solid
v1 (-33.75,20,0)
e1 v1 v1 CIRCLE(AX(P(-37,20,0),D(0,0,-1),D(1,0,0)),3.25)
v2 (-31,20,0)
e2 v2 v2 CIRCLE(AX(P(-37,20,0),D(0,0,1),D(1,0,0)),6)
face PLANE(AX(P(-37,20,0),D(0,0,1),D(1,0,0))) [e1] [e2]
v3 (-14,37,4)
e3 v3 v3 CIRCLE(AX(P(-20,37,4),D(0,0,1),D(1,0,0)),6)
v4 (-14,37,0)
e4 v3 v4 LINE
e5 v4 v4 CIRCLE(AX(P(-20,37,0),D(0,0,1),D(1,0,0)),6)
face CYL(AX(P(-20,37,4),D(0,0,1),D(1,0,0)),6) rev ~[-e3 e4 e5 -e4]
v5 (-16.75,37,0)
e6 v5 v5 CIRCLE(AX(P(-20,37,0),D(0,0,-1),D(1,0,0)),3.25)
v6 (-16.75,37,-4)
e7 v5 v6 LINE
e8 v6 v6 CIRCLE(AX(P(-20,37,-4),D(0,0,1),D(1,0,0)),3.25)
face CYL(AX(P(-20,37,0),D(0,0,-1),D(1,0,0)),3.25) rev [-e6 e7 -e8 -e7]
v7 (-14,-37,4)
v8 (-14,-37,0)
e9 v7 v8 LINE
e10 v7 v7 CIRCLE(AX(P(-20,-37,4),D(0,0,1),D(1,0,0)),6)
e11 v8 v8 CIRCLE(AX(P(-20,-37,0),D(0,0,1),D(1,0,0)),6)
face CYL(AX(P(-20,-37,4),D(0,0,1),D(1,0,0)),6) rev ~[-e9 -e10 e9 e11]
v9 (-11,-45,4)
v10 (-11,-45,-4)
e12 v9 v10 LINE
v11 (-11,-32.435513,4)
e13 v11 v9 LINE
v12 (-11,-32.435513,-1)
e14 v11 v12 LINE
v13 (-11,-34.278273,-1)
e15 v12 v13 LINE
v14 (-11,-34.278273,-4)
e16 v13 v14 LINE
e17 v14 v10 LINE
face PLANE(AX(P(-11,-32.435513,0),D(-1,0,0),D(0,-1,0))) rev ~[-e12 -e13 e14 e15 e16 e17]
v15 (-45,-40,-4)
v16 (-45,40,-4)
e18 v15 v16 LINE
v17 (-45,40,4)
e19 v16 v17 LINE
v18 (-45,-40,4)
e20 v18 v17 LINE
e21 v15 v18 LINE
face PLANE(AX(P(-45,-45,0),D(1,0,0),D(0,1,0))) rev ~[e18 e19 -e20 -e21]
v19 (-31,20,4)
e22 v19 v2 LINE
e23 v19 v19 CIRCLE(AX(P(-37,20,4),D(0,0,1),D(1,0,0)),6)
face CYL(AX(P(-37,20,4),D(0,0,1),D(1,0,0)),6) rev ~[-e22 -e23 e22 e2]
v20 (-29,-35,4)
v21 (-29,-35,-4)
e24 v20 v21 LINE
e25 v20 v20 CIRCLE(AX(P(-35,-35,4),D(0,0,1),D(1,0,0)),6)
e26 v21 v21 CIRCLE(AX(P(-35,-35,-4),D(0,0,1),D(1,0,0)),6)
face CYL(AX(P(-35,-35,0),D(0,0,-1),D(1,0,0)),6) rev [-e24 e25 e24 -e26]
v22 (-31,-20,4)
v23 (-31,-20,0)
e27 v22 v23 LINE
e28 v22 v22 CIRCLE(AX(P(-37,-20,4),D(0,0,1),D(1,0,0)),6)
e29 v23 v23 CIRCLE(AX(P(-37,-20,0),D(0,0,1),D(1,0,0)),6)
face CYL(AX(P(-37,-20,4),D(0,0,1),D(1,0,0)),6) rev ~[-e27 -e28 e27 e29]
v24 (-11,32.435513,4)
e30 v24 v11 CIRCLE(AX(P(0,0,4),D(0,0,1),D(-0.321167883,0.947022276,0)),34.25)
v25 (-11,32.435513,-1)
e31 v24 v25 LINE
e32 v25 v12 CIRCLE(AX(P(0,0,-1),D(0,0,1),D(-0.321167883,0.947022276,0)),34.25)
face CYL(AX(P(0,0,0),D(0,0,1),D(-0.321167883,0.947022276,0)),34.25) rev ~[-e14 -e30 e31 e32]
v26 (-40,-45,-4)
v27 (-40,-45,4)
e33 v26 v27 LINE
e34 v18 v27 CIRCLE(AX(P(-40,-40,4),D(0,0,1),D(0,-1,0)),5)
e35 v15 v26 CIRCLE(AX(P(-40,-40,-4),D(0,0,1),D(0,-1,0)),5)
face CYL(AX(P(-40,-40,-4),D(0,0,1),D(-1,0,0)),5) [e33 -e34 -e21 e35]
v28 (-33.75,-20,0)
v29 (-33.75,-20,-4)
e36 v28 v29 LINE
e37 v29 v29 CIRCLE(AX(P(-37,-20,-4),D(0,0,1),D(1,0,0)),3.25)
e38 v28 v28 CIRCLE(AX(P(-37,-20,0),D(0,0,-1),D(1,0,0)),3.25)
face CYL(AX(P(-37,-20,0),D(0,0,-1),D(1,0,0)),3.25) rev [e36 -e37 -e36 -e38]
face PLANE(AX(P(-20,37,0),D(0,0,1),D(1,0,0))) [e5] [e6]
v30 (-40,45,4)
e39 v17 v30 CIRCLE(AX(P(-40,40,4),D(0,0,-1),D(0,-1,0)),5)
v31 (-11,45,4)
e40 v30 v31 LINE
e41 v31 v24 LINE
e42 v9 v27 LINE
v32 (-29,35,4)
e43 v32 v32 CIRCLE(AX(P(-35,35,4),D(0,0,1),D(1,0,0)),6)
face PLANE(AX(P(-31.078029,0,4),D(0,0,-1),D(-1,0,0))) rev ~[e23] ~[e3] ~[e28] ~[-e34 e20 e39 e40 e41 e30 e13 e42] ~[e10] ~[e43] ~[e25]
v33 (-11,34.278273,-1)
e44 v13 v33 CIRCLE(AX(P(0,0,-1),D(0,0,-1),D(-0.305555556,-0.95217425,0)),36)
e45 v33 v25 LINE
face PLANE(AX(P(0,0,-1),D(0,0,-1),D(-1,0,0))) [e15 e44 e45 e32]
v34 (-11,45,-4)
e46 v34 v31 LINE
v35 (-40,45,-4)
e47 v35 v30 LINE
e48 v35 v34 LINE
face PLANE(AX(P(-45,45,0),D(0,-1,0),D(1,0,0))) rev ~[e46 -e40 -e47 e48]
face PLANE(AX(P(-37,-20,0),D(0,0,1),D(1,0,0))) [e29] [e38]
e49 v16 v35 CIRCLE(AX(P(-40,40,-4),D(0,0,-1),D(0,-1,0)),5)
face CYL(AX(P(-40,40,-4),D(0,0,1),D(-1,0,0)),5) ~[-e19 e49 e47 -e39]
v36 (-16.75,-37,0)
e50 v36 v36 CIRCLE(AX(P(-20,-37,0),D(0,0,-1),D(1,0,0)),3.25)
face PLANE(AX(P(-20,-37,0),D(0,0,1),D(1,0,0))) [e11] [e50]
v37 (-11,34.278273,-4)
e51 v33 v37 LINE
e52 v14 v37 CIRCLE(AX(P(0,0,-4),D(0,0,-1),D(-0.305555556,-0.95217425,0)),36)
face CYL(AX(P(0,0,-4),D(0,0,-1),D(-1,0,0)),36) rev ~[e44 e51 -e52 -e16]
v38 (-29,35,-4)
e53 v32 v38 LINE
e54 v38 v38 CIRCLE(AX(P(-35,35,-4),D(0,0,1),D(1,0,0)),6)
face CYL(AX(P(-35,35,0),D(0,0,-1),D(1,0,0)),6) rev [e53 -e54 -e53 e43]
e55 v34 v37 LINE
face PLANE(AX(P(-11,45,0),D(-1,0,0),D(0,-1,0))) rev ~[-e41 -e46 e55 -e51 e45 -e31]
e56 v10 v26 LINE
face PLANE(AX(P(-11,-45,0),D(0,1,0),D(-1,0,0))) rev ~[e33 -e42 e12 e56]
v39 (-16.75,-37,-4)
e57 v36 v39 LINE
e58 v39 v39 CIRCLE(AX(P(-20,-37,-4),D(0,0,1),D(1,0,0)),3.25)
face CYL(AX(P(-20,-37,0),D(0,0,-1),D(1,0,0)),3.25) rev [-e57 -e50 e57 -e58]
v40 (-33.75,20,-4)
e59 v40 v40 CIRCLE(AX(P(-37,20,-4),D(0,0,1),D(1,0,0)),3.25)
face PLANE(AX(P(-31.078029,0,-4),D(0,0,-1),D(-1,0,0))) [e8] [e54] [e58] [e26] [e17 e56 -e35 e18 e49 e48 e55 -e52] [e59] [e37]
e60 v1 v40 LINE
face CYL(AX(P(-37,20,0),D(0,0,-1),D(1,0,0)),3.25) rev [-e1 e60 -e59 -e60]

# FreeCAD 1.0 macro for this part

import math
import FreeCAD as App
import Part
import Sketcher
from FreeCAD import Vector
Q = App.Units.Quantity


def edges_at(feature, points):
    """Names of the edges that pass closest to the given points."""
    edges = feature.Shape.Edges
    near = lambda p: min(range(len(edges)), key=lambda i: edges[i].distToShape(Part.Vertex(*p))[0])
    return sorted({f"Edge{near(p) + 1}" for p in points})

doc = App.newDocument("Part")
body = doc.addObject("PartDesign::Body", "Body")

sketch1 = body.newObject("Sketcher::SketchObject", "Sketch")
sketch1.AttachmentSupport = (doc.getObject("XY_Plane"), [""])
sketch1.MapMode = "FlatFace"
sketch1.addGeometry(Part.LineSegment(Vector(-11, 32.4, 0), Vector(-11, 45, 0)), False)
sketch1.addGeometry(Part.LineSegment(Vector(-11, 45, 0), Vector(-45, 45, 0)), False)
sketch1.addGeometry(Part.LineSegment(Vector(-45, 45, 0), Vector(-45, -45, 0)), False)
sketch1.addGeometry(Part.LineSegment(Vector(-45, -45, 0), Vector(-11, -45, 0)), False)
sketch1.addGeometry(Part.LineSegment(Vector(-11, -45, 0), Vector(-11, -32.4, 0)), False)
sketch1.addGeometry(Part.ArcOfCircle(Part.Circle(Vector(0, 0, 0), Vector(0, 0, 1), 34.2), math.radians(109), math.radians(251)), False)
sketch1.addGeometry(Part.Circle(Vector(-20, -37, 0), Vector(0, 0, 1), 3.2), False)
sketch1.addGeometry(Part.Circle(Vector(-35, -35, 0), Vector(0, 0, 1), 6), False)
sketch1.addGeometry(Part.Circle(Vector(-37, -20, 0), Vector(0, 0, 1), 3.2), False)
sketch1.addGeometry(Part.Circle(Vector(-20, 37, 0), Vector(0, 0, 1), 3.2), False)
sketch1.addGeometry(Part.Circle(Vector(-37, 20, 0), Vector(0, 0, 1), 3.2), False)
sketch1.addGeometry(Part.Circle(Vector(-35, 35, 0), Vector(0, 0, 1), 6), False)
sketch1.addConstraint(Sketcher.Constraint("Coincident", 0, 2, 1, 1))
sketch1.addConstraint(Sketcher.Constraint("Coincident", 1, 2, 2, 1))
sketch1.addConstraint(Sketcher.Constraint("Coincident", 2, 2, 3, 1))
sketch1.addConstraint(Sketcher.Constraint("Coincident", 3, 2, 4, 1))
sketch1.addConstraint(Sketcher.Constraint("Coincident", 4, 2, 5, 2))
sketch1.addConstraint(Sketcher.Constraint("Coincident", 5, 1, 0, 1))
sketch1.addConstraint(Sketcher.Constraint("Vertical", 0))
sketch1.addConstraint(Sketcher.Constraint("Horizontal", 1))
sketch1.addConstraint(Sketcher.Constraint("Vertical", 2))
sketch1.addConstraint(Sketcher.Constraint("Horizontal", 3))
sketch1.addConstraint(Sketcher.Constraint("Vertical", 4))
sketch1.addConstraint(Sketcher.Constraint("Coincident", 5, 3, -1, 1))
sketch1.addConstraint(Sketcher.Constraint("Equal", 6, 8))
sketch1.addConstraint(Sketcher.Constraint("Equal", 8, 9))
sketch1.addConstraint(Sketcher.Constraint("Equal", 9, 10))
sketch1.addConstraint(Sketcher.Constraint("Equal", 7, 11))
sketch1.addConstraint(Sketcher.Constraint("Symmetric", 6, 3, 9, 3, -1))
sketch1.addConstraint(Sketcher.Constraint("Symmetric", 8, 3, 10, 3, -1))
sketch1.addConstraint(Sketcher.Constraint("Symmetric", 7, 3, 11, 3, -1))
sketch1.addConstraint(Sketcher.Constraint("Symmetric", 0, 2, 3, 2, -1))
sketch1.addConstraint(Sketcher.Constraint("Diameter", 7, Q("12 mm")))
sketch1.addConstraint(Sketcher.Constraint("Diameter", 6, Q("6.5 mm")))
sketch1.addConstraint(Sketcher.Constraint("DistanceX", 1, 2, 1, 1, Q("34 mm")))
sketch1.addConstraint(Sketcher.Constraint("DistanceY", 2, 2, 2, 1, Q("90 mm")))
sketch1.addConstraint(Sketcher.Constraint("Radius", 5, Q("34.25 mm")))
sketch1.addConstraint(Sketcher.Constraint("DistanceX", 6, 3, -1, 1, Q("20 mm")))
sketch1.addConstraint(Sketcher.Constraint("DistanceY", 6, 3, -1, 1, Q("37 mm")))
sketch1.addConstraint(Sketcher.Constraint("DistanceX", 7, 3, -1, 1, Q("35 mm")))
sketch1.addConstraint(Sketcher.Constraint("DistanceY", 7, 3, -1, 1, Q("35 mm")))
sketch1.addConstraint(Sketcher.Constraint("DistanceX", 8, 3, -1, 1, Q("37 mm")))
sketch1.addConstraint(Sketcher.Constraint("DistanceY", 8, 3, -1, 1, Q("20 mm")))
sketch1.addConstraint(Sketcher.Constraint("DistanceX", 0, 2, -1, 1, Q("11 mm")))
pad1 = body.newObject("PartDesign::Pad", "Pad")
pad1.Profile = sketch1
pad1.Length = 8
pad1.Midplane = True

sketch2 = body.newObject("Sketcher::SketchObject", "Sketch001")
sketch2.AttachmentSupport = (doc.getObject("XY_Plane"), [""])
sketch2.MapMode = "FlatFace"
sketch2.AttachmentOffset = App.Placement(Vector(0, 0, -4), App.Rotation())
sketch2.addGeometry(Part.Circle(Vector(0, 0, 0), Vector(0, 0, 1), 36), False)
sketch2.addConstraint(Sketcher.Constraint("Coincident", 0, 3, -1, 1))
sketch2.addConstraint(Sketcher.Constraint("Diameter", 0, Q("72 mm")))
pocket1 = body.newObject("PartDesign::Pocket", "Pocket")
pocket1.Profile = sketch2
pocket1.Length = 3
pocket1.Reversed = True
doc.recompute()

fillet = body.newObject("PartDesign::Fillet", "Fillet")
fillet.Base = (pocket1, edges_at(pocket1, [(-45, -45, 0), (-45, 45, 0)]))
fillet.Radius = 5

sketch3 = body.newObject("Sketcher::SketchObject", "Sketch002")
sketch3.AttachmentSupport = (doc.getObject("XY_Plane"), [""])
sketch3.MapMode = "FlatFace"
sketch3.AttachmentOffset = App.Placement(Vector(0, 0, 4), App.Rotation())
sketch3.addGeometry(Part.Circle(Vector(-20, 37, 0), Vector(0, 0, 1), 6), False)
sketch3.addGeometry(Part.Circle(Vector(-37, 20, 0), Vector(0, 0, 1), 6), False)
sketch3.addGeometry(Part.Circle(Vector(-37, -20, 0), Vector(0, 0, 1), 6), False)
sketch3.addGeometry(Part.Circle(Vector(-20, -37, 0), Vector(0, 0, 1), 6), False)
sketch3.addConstraint(Sketcher.Constraint("Equal", 0, 1))
sketch3.addConstraint(Sketcher.Constraint("Equal", 1, 2))
sketch3.addConstraint(Sketcher.Constraint("Equal", 2, 3))
sketch3.addConstraint(Sketcher.Constraint("Symmetric", 1, 3, 2, 3, -1))
sketch3.addConstraint(Sketcher.Constraint("Symmetric", 0, 3, 3, 3, -1))
sketch3.addConstraint(Sketcher.Constraint("Diameter", 0, Q("12 mm")))
sketch3.addConstraint(Sketcher.Constraint("DistanceX", 0, 3, -1, 1, Q("20 mm")))
sketch3.addConstraint(Sketcher.Constraint("DistanceY", -1, 1, 0, 3, Q("37 mm")))
sketch3.addConstraint(Sketcher.Constraint("DistanceX", 1, 3, -1, 1, Q("37 mm")))
sketch3.addConstraint(Sketcher.Constraint("DistanceY", -1, 1, 1, 3, Q("20 mm")))
pocket2 = body.newObject("PartDesign::Pocket", "Pocket001")
pocket2.Profile = sketch3
pocket2.Length = 4

doc.recompute()
